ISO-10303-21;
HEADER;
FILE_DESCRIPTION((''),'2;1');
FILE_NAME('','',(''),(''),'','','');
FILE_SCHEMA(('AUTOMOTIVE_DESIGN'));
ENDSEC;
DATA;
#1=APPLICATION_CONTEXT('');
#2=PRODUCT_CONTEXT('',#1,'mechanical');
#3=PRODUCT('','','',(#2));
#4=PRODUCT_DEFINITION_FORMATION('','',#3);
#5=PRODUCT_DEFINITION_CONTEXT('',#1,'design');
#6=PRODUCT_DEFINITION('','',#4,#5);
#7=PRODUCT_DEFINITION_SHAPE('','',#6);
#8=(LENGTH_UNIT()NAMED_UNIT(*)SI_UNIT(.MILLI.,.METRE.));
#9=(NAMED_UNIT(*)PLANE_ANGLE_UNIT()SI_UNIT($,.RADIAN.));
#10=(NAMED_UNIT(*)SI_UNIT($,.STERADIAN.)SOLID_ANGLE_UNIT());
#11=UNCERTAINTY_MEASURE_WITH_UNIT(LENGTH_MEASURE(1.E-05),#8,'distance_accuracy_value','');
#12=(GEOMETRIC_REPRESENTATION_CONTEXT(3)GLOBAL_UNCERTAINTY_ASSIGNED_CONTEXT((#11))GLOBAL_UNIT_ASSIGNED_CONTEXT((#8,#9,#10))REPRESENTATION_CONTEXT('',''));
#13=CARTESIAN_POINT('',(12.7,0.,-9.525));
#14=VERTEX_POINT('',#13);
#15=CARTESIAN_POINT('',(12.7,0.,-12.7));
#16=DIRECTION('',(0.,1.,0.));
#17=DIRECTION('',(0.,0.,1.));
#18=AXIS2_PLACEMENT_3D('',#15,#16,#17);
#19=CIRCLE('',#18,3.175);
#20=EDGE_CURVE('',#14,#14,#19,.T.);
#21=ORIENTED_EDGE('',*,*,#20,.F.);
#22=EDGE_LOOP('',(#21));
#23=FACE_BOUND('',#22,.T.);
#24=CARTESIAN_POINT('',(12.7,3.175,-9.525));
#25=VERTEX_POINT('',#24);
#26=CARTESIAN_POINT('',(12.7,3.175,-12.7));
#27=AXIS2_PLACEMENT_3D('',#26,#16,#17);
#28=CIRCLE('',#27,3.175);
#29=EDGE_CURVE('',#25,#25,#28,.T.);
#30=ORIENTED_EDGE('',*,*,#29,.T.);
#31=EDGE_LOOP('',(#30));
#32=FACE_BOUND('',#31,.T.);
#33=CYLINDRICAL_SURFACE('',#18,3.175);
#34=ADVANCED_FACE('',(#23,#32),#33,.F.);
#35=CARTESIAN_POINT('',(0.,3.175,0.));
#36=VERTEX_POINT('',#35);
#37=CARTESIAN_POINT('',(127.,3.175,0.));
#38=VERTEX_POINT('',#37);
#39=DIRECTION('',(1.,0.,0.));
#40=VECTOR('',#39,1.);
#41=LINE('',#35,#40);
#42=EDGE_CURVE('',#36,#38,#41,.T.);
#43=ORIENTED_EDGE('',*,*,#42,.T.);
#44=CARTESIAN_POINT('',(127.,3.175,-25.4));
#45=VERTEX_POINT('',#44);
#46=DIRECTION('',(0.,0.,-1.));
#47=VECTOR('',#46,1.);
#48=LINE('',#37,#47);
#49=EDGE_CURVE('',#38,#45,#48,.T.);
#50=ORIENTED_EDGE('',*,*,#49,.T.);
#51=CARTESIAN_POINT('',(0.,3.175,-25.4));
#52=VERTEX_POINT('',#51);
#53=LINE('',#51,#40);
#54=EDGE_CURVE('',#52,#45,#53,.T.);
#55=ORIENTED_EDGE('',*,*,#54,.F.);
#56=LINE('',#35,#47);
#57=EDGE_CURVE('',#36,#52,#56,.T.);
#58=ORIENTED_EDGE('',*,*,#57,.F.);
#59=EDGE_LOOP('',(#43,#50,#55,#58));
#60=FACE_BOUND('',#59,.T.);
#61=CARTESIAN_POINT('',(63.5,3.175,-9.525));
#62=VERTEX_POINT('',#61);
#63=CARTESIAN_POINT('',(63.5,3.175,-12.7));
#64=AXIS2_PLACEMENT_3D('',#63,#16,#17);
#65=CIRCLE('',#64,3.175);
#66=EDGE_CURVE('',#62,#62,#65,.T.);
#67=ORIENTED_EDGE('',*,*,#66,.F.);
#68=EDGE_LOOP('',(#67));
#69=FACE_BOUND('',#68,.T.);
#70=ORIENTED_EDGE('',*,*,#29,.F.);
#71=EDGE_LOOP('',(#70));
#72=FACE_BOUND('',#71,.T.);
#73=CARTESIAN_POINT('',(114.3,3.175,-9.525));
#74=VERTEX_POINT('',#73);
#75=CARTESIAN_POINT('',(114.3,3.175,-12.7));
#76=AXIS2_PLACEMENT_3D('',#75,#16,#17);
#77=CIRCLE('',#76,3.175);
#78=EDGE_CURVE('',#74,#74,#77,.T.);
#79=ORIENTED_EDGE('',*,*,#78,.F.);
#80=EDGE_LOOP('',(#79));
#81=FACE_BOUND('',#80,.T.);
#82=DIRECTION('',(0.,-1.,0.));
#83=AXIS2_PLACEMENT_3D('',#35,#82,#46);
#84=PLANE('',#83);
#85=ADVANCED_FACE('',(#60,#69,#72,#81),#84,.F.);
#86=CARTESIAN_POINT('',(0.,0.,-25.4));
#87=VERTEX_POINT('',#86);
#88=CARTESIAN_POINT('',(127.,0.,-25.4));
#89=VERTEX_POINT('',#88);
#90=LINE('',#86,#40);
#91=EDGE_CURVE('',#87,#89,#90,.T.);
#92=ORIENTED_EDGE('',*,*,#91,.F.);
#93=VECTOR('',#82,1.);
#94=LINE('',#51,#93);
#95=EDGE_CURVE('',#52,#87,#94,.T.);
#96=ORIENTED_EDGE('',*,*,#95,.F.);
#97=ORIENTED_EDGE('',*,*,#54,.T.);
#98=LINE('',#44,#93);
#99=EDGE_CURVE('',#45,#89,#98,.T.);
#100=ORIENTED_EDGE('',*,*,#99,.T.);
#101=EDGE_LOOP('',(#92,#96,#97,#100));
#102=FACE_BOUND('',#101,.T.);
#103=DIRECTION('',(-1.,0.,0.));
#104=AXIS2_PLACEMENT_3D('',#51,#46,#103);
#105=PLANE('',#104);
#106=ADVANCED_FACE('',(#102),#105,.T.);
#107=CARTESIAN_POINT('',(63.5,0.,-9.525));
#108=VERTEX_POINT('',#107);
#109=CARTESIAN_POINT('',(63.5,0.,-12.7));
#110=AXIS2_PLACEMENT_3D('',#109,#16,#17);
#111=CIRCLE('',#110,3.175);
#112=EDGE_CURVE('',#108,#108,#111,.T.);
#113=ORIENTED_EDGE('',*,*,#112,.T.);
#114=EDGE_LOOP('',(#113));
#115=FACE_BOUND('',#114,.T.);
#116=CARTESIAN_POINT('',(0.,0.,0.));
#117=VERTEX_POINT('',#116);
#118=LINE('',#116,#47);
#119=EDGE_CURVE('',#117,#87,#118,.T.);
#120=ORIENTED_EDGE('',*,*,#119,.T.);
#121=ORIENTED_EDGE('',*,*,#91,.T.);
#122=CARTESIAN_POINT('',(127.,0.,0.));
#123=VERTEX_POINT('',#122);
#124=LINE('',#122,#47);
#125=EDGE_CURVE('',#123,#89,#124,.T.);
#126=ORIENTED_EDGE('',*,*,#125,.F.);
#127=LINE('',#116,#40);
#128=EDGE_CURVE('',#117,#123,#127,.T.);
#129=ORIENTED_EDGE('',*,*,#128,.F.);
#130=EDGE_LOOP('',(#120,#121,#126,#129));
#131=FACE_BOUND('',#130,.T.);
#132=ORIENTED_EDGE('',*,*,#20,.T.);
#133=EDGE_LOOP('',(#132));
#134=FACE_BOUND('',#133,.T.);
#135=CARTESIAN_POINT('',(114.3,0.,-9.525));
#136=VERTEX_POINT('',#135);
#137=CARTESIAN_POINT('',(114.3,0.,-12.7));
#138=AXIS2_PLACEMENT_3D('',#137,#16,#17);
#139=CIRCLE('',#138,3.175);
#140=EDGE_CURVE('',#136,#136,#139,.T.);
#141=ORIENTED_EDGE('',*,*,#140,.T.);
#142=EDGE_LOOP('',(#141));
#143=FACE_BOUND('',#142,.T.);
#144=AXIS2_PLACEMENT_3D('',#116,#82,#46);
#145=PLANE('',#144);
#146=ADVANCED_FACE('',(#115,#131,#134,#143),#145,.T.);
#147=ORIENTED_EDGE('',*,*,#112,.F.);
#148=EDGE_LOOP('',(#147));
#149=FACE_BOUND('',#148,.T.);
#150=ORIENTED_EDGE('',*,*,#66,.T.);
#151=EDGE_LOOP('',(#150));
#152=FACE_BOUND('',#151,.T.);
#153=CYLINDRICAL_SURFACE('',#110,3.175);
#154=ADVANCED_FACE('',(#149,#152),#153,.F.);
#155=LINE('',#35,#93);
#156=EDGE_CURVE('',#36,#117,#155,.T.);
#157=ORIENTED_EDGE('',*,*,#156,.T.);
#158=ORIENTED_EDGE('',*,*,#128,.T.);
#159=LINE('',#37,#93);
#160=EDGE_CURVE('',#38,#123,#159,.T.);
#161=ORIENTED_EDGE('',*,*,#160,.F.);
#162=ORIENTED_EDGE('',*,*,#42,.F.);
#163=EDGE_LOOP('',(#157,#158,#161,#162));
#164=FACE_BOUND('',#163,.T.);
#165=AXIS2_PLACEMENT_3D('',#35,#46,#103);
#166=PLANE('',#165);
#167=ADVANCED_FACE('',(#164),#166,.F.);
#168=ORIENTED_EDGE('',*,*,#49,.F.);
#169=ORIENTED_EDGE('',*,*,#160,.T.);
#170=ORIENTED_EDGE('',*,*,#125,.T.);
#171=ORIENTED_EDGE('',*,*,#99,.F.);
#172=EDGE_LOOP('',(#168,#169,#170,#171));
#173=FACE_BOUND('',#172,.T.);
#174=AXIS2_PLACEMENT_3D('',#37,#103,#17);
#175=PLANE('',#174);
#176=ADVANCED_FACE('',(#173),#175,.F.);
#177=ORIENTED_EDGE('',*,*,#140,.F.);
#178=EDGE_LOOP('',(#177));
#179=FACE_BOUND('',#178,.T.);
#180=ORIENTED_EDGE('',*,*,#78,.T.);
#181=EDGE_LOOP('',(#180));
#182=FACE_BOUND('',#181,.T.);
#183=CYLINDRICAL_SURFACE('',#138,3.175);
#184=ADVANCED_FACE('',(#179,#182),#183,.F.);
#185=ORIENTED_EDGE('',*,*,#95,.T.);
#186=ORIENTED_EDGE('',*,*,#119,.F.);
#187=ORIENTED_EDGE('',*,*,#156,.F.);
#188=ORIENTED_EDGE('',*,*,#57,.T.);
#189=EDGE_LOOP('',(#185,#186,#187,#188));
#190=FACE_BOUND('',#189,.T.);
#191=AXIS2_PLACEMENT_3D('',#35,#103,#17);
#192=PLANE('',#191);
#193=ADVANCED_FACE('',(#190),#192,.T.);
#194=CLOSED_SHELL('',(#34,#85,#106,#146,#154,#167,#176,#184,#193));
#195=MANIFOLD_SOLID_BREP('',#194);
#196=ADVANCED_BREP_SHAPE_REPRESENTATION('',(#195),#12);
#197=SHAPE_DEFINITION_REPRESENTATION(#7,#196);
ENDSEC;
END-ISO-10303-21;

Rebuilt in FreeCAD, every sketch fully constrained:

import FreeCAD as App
import Part
import Sketcher

V = App.Vector
Q = App.Units.Quantity


def add_polygon(sketch, points):
    """Adds a closed chain of lines whose ends are joined by coincident constraints."""
    first, n = sketch.GeometryCount, len(points)
    for a, b in zip(points, points[1:] + points[:1]):
        sketch.addGeometry(Part.LineSegment(App.Vector(*a, 0), App.Vector(*b, 0)), False)
    for i in range(n):
        sketch.addConstraint(Sketcher.Constraint("Coincident", first + i, 2, first + (i + 1) % n, 1))

doc = App.newDocument("Part")
params = doc.addObject("Spreadsheet::Sheet", "Params")
for row, (alias, value) in enumerate([
    ("sketch1_width", "5 in"),
    ("sketch1_height", "1 in"),
    ("pad1_length", "0.125 in"),
    ("sketch2_diameter", "0.25 in"),
    ("pocket1_length", "0.125 in"),
], start=1):
    params.set(f"A{row}", alias)
    params.set(f"B{row}", "=" + value)
    params.setAlias(f"B{row}", alias)

body = doc.addObject("PartDesign::Body", "Body")

sketch1 = body.newObject("Sketcher::SketchObject", "Sketch")
sketch1.AttachmentSupport = (doc.getObject("XZ_Plane"), [""])
sketch1.MapMode = "FlatFace"
add_polygon(sketch1, [(0, -25), (0, 0), (127, 0), (127, -25)])
sketch1.addConstraint(Sketcher.Constraint("Vertical", 0))
sketch1.addConstraint(Sketcher.Constraint("Horizontal", 1))
sketch1.addConstraint(Sketcher.Constraint("Vertical", 2))
sketch1.addConstraint(Sketcher.Constraint("Horizontal", 3))
sketch1.addConstraint(Sketcher.Constraint("Coincident", 0, 2, -1, 1))
sketch1.addConstraint(Sketcher.Constraint("DistanceX", 1, 1, 1, 2, Q("5 in")))
sketch1.addConstraint(Sketcher.Constraint("DistanceY", 0, 1, 0, 2, Q("1 in")))
sketch1.setExpression("Constraints[9]", "Params.sketch1_width")
sketch1.setExpression("Constraints[10]", "Params.sketch1_height")
pad1 = body.newObject("PartDesign::Pad", "Pad")
pad1.Profile = sketch1
pad1.setExpression("Length", "Params.pad1_length")
pad1.Reversed = True

sketch2 = body.newObject("Sketcher::SketchObject", "Sketch001")
sketch2.AttachmentSupport = (doc.getObject("XZ_Plane"), [""])
sketch2.MapMode = "FlatFace"
sketch2.AttachmentOffset = App.Placement(V(0, 0, -0.125 * 25.4), App.Rotation())
sketch2.addGeometry(Part.Circle(V(12.7, -12.7, 0), V(0, 0, 1), 3.2), False)
sketch2.addGeometry(Part.Circle(V(114.3, -12.7, 0), V(0, 0, 1), 3.2), False)
sketch2.addGeometry(Part.Circle(V(63.5, -12.7, 0), V(0, 0, 1), 3.2), False)
sketch2.addConstraint(Sketcher.Constraint("Equal", 0, 1))
sketch2.addConstraint(Sketcher.Constraint("Equal", 1, 2))
sketch2.addConstraint(Sketcher.Constraint("Horizontal", 0, 3, 1, 3))
sketch2.addConstraint(Sketcher.Constraint("Horizontal", 1, 3, 2, 3))
sketch2.addConstraint(Sketcher.Constraint("Diameter", 0, Q("0.25 in")))
sketch2.addConstraint(Sketcher.Constraint("DistanceX", 0, 3, 1, 3, Q("4 in")))
sketch2.addConstraint(Sketcher.Constraint("DistanceX", 0, 3, 2, 3, Q("2 in")))
sketch2.addConstraint(Sketcher.Constraint("DistanceX", -1, 1, 0, 3, Q("0.5 in")))
sketch2.addConstraint(Sketcher.Constraint("DistanceY", 0, 3, -1, 1, Q("0.5 in")))
sketch2.setExpression("Constraints[4]", "Params.sketch2_diameter")
pocket1 = body.newObject("PartDesign::Pocket", "Pocket")
pocket1.Profile = sketch2
pocket1.setExpression("Length", "Params.pocket1_length")
pocket1.Reversed = True

doc.recompute()
